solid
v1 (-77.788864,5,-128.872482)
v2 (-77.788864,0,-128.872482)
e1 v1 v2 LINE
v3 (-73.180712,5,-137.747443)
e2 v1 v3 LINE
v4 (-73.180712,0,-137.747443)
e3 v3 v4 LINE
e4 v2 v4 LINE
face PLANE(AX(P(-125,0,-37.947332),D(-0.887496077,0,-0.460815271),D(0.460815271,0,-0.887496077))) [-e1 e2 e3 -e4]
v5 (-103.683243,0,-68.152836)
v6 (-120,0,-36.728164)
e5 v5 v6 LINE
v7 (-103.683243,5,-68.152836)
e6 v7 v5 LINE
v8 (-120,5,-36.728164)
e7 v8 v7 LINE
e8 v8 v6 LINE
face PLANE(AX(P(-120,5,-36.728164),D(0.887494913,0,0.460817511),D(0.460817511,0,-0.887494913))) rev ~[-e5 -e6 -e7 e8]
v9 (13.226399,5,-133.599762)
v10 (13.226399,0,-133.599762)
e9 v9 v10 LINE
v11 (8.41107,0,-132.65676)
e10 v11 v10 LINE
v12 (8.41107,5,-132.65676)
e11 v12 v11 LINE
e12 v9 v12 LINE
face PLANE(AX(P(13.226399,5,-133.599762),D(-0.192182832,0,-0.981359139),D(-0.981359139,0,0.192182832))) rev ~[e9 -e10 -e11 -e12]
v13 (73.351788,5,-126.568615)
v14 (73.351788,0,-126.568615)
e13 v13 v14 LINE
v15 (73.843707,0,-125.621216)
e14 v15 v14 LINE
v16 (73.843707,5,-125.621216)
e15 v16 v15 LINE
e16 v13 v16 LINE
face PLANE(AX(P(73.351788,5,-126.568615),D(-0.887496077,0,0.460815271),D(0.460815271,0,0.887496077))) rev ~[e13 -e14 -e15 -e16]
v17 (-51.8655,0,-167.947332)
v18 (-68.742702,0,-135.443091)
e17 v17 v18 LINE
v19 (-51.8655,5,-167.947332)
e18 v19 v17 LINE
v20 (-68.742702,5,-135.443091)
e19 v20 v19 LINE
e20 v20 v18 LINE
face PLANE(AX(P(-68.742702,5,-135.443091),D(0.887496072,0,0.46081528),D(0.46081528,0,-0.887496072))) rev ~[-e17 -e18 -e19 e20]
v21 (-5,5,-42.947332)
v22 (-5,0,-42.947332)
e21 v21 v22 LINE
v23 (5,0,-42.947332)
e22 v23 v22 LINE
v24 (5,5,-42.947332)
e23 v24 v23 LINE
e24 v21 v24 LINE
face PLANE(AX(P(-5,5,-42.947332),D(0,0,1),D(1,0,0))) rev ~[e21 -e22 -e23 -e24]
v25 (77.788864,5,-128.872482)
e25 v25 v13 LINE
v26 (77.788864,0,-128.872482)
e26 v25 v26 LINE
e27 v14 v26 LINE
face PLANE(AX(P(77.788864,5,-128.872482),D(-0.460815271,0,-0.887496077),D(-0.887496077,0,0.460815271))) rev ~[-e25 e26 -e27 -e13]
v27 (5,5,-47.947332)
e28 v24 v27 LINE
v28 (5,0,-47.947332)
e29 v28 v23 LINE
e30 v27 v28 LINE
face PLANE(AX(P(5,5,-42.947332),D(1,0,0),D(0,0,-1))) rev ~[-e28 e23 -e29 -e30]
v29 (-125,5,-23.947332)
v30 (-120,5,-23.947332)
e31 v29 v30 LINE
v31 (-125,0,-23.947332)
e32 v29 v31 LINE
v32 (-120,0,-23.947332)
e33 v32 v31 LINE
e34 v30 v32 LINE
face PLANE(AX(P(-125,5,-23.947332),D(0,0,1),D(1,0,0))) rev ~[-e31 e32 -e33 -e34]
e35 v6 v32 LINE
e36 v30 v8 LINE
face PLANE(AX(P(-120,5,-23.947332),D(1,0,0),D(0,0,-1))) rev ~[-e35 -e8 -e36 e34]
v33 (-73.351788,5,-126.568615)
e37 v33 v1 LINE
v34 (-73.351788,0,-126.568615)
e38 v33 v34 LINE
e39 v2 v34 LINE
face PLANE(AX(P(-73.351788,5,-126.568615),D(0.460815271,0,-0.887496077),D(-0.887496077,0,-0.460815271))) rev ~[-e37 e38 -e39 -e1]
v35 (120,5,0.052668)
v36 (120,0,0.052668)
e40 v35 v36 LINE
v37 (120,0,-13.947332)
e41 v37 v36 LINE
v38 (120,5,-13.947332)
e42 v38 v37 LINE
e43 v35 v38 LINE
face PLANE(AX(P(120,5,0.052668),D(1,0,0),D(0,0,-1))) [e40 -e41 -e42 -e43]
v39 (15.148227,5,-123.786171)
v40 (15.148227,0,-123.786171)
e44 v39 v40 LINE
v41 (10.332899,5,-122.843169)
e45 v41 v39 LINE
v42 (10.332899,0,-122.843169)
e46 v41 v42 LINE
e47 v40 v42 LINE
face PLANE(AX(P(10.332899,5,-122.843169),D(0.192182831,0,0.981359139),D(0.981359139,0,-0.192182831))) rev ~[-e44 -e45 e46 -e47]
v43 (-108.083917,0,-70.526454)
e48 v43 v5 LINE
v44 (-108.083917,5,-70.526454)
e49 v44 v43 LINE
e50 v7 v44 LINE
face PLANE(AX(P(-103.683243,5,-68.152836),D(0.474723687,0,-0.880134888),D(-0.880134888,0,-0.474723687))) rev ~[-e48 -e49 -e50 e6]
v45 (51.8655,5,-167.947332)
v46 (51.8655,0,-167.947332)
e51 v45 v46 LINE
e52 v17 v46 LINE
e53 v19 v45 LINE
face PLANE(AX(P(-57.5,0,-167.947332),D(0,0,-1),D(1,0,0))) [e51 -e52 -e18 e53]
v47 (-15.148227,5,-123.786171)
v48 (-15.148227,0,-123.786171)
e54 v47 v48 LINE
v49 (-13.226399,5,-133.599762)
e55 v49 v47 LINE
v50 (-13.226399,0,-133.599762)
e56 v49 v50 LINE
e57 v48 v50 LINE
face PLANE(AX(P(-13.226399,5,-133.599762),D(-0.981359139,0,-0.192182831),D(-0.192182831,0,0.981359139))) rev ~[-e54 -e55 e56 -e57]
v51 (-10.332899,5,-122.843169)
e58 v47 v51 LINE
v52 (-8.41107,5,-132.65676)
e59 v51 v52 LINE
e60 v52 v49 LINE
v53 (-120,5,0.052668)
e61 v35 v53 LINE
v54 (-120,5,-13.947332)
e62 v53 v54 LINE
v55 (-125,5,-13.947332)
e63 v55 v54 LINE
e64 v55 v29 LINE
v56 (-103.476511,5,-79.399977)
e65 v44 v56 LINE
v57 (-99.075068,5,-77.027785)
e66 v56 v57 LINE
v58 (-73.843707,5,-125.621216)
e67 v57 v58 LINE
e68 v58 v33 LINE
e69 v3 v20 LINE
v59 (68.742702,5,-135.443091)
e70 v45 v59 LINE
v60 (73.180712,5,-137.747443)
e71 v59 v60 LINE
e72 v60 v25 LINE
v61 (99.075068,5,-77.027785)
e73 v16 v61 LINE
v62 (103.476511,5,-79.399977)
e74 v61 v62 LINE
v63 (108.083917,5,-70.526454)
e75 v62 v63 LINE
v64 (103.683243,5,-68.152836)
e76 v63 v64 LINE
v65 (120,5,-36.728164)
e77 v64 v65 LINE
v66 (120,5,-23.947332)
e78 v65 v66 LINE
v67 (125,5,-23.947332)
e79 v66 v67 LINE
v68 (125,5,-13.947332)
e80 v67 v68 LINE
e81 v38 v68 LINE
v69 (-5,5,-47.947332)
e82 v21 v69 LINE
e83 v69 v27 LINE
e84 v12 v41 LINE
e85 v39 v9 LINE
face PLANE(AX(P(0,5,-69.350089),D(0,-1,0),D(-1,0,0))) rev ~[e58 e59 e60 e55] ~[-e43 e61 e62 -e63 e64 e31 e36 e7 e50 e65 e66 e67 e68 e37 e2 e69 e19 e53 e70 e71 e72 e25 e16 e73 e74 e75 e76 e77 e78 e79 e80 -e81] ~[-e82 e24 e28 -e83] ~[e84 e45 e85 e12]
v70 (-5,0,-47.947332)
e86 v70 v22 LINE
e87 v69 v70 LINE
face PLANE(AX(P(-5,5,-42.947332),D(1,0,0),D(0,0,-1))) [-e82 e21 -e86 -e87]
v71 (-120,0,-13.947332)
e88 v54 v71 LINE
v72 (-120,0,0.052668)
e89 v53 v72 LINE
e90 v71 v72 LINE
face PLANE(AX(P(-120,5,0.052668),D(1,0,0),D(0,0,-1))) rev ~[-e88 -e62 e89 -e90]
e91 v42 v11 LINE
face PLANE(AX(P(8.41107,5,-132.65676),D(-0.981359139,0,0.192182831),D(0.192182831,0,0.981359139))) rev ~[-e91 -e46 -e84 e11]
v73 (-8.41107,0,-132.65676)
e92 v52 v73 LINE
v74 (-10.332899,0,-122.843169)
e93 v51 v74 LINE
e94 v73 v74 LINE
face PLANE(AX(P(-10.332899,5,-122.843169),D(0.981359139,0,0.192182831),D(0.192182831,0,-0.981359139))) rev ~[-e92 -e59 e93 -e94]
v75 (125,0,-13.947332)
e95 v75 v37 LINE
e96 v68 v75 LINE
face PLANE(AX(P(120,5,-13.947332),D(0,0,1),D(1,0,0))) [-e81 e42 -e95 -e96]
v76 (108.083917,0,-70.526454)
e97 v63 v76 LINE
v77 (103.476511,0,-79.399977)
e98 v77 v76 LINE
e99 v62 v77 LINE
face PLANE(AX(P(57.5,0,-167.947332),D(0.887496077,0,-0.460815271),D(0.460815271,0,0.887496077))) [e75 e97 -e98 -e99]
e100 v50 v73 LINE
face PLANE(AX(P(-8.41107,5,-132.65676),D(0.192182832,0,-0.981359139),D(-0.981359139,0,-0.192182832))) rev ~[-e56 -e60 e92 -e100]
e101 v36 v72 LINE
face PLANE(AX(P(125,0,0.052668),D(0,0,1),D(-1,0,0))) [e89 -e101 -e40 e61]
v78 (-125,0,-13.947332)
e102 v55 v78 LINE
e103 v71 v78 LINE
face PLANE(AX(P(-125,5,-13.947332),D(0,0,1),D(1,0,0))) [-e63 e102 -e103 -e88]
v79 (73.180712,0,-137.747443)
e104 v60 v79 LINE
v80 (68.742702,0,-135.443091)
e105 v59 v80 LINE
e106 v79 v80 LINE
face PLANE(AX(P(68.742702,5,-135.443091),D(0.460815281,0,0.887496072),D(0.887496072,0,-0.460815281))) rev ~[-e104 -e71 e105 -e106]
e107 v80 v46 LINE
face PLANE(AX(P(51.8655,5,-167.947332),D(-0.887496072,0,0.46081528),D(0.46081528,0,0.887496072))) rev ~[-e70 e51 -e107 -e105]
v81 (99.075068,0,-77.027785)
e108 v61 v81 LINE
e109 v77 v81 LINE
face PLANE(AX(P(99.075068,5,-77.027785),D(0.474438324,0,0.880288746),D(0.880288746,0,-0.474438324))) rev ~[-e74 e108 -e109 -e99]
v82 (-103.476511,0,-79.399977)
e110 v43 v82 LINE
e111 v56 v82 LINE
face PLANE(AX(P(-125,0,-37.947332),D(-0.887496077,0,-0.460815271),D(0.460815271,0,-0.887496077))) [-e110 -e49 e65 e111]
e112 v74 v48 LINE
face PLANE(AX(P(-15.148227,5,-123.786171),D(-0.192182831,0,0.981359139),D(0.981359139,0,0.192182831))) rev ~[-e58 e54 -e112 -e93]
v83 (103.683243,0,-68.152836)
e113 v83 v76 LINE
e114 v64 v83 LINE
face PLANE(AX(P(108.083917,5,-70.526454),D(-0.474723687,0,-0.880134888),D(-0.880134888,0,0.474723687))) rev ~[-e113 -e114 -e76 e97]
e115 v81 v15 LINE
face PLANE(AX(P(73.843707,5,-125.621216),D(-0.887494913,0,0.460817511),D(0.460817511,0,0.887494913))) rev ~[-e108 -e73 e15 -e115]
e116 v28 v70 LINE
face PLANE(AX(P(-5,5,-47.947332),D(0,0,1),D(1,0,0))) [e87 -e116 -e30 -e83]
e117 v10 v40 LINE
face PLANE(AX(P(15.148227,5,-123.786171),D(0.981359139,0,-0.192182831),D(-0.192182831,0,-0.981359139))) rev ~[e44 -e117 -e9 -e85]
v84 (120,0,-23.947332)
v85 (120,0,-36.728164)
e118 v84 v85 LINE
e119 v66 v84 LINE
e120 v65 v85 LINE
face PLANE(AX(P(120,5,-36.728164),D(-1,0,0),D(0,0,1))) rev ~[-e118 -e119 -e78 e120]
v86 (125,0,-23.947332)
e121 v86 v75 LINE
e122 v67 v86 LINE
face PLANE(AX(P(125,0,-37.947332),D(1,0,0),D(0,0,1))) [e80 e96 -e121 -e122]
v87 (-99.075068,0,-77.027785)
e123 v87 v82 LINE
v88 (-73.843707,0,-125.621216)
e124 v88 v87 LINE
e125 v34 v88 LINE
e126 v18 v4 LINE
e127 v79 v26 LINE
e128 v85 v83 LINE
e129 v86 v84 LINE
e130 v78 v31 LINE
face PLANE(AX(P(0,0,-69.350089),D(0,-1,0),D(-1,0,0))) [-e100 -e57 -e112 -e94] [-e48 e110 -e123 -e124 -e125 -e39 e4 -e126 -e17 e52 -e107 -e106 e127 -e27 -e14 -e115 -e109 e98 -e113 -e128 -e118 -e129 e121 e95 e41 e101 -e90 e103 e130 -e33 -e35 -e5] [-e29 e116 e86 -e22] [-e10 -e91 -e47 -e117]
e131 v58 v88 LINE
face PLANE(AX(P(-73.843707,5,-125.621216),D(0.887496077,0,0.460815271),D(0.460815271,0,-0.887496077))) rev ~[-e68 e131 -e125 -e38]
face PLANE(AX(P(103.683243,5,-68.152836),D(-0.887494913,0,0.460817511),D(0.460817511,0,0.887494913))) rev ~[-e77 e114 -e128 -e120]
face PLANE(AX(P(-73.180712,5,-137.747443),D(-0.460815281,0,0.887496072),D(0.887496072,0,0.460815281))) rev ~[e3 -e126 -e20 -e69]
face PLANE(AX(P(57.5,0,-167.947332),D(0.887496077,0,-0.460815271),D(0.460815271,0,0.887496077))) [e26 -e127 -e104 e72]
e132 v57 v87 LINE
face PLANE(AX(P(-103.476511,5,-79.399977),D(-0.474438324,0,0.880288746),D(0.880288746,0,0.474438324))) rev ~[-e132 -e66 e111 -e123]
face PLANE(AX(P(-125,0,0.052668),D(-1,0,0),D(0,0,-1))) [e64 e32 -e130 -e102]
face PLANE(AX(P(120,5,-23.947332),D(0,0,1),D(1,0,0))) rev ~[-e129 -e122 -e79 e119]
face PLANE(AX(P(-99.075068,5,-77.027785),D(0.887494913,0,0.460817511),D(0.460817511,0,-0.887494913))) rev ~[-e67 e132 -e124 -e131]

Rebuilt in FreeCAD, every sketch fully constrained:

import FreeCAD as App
import Part
import Sketcher


def add_polygon(sketch, points):
    """Adds a closed chain of lines whose ends are joined by coincident constraints."""
    first, n = sketch.GeometryCount, len(points)
    for a, b in zip(points, points[1:] + points[:1]):
        sketch.addGeometry(Part.LineSegment(App.Vector(*a, 0), App.Vector(*b, 0)), False)
    for i in range(n):
        sketch.addConstraint(Sketcher.Constraint("Coincident", first + i, 2, first + (i + 1) % n, 1))

doc = App.newDocument("Part")
body = doc.addObject("PartDesign::Body", "Body")

# Sketch on XZ plane
sketch1 = body.newObject("Sketcher::SketchObject", "Sketch")
sketch1.AttachmentSupport = (doc.getObject("XZ_Plane"), [""])
sketch1.MapMode = "FlatFace"
add_polygon(sketch1, [(57.5, -167.947332), (-57.5, -167.947332), (-125, -37.947332), (-125, 0.052668), (125, 0.052668), (125, -37.947332)])  # lines 0-5
sketch1.addConstraint([
    Sketcher.Constraint("Horizontal", 0),
    Sketcher.Constraint("Vertical", 2),
    Sketcher.Constraint("Horizontal", 3),
    Sketcher.Constraint("Vertical", 4),
    Sketcher.Constraint("Symmetric", 1, 2, 4, 2, -2),
    Sketcher.Constraint("Equal", 1, 5),
    Sketcher.Constraint("DistanceX", 0, 2, 0, 1, 115.0),
    Sketcher.Constraint("DistanceX", 3, 1, 3, 2, 250.0),
    Sketcher.Constraint("DistanceY", 2, 1, 2, 2, 38.0),
    Sketcher.Constraint("DistanceY", 0, 2, 1, 2, 130.0),
    Sketcher.Constraint("DistanceY", 0, 2, -1, 1, 167.947332),
])
pad1 = body.newObject("PartDesign::Pad", "Pad")
pad1.Profile = sketch1
pad1.Length = 5
pad1.Reversed = True

# Sketch on XZ plane
sketch2 = body.newObject("Sketcher::SketchObject", "Sketch001")
sketch2.AttachmentSupport = (doc.getObject("XZ_Plane"), [""])
sketch2.MapMode = "FlatFace"
sketch2.AttachmentOffset = App.Placement(App.Vector(0, 0, -5), App.Rotation())
add_polygon(sketch2, [(-77.788864, -128.872482), (-103.476511, -79.399977), (-99.075068, -77.027785), (-73.843707, -125.621216), (-73.351788, -126.568615)])  # lines 0-4
add_polygon(sketch2, [(-125, -37.947332), (-125, -23.947332), (-120, -23.947332), (-120, -36.728164), (-103.683243, -68.152836), (-108.083917, -70.526454)])  # lines 5-10
add_polygon(sketch2, [(-125, -13.947332), (-125, 0.052668), (-120, 0.052668), (-120, -13.947332)])  # lines 11-14
add_polygon(sketch2, [(-5, -47.947332), (-5, -42.947332), (5, -42.947332), (5, -47.947332)])  # lines 15-18
add_polygon(sketch2, [(-8.41107, -132.65676), (-13.226399, -133.599762), (-15.148227, -123.786171), (-10.332899, -122.843169)])  # lines 19-22
add_polygon(sketch2, [(10.332899, -122.843169), (15.148227, -123.786171), (13.226399, -133.599762), (8.41107, -132.65676)])  # lines 23-26
add_polygon(sketch2, [(-73.180712, -137.747443), (-68.742702, -135.443091), (-51.8655, -167.947332), (-57.5, -167.947332)])  # lines 27-30
add_polygon(sketch2, [(73.351788, -126.568615), (73.843707, -125.621216), (99.075068, -77.027785), (103.476511, -79.399977), (77.788864, -128.872482)])  # lines 31-35
add_polygon(sketch2, [(68.742702, -135.443091), (73.180712, -137.747443), (57.5, -167.947332), (51.8655, -167.947332)])  # lines 36-39
add_polygon(sketch2, [(120, -13.947332), (120, 0.052668), (125, 0.052668), (125, -13.947332)])  # lines 40-43
add_polygon(sketch2, [(125, -23.947332), (125, -37.947332), (108.083917, -70.526454), (103.683243, -68.152836), (120, -36.728164), (120, -23.947332)])  # lines 44-49
sketch2.addConstraint([
    Sketcher.Constraint("Vertical", 5),
    Sketcher.Constraint("Horizontal", 6),
    Sketcher.Constraint("Vertical", 7),
    Sketcher.Constraint("Vertical", 11),
    Sketcher.Constraint("Horizontal", 12),
    Sketcher.Constraint("Vertical", 13),
    Sketcher.Constraint("Horizontal", 14),
    Sketcher.Constraint("Vertical", 15),
    Sketcher.Constraint("Horizontal", 16),
    Sketcher.Constraint("Vertical", 17),
    Sketcher.Constraint("Horizontal", 18),
    Sketcher.Constraint("Horizontal", 29),
    Sketcher.Constraint("Horizontal", 38),
    Sketcher.Constraint("Vertical", 40),
    Sketcher.Constraint("Horizontal", 41),
    Sketcher.Constraint("Vertical", 42),
    Sketcher.Constraint("Horizontal", 43),
    Sketcher.Constraint("Vertical", 44),
    Sketcher.Constraint("Vertical", 48),
    Sketcher.Constraint("Horizontal", 49),
    Sketcher.Constraint("DistanceX", 6, 1, 6, 2, 5.0),
    Sketcher.Constraint("DistanceX", 12, 1, 12, 2, 5.0),
    Sketcher.Constraint("DistanceX", 16, 1, 16, 2, 10.0),
    Sketcher.Constraint("DistanceX", 41, 1, 41, 2, 5.0),
    Sketcher.Constraint("DistanceX", 49, 1, 49, 2, 5.0),
    Sketcher.Constraint("DistanceY", 5, 1, 5, 2, 14.0),
    Sketcher.Constraint("DistanceY", 11, 1, 11, 2, 14.0),
    Sketcher.Constraint("DistanceY", 15, 1, 15, 2, 5.0),
    Sketcher.Constraint("DistanceY", 40, 1, 40, 2, 14.0),
    Sketcher.Constraint("DistanceY", 44, 2, 44, 1, 14.0),
    Sketcher.Constraint("Distance", 1, 5.0),
    Sketcher.Constraint("Distance", 9, 5.0),
    Sketcher.Constraint("Distance", 20, 10.0),
    Sketcher.Constraint("Distance", 22, 10.0),
    Sketcher.Constraint("Distance", 24, 10.0),
    Sketcher.Constraint("Distance", 26, 10.0),
    Sketcher.Constraint("Distance", 33, 5.0),
    Sketcher.Constraint("Distance", 46, 5.0),
    Sketcher.Constraint("DistanceX", 5, 2, -1, 1, 125.0),
    Sketcher.Constraint("DistanceX", 11, 2, -1, 1, 125.0),
    Sketcher.Constraint("DistanceX", 15, 2, -1, 1, 5.0),
    Sketcher.Constraint("DistanceX", -1, 1, 40, 2, 120.0),
    Sketcher.Constraint("DistanceX", -1, 1, 44, 2, 125.0),
    Sketcher.Constraint("DistanceY", 5, 2, 11, 2, 24.0),
    Sketcher.Constraint("DistanceY", 16, 2, 40, 2, 43.0),
    Sketcher.Constraint("DistanceY", 44, 2, 42, 2, 24.0),
    Sketcher.Constraint("DistanceX", 29, 2, -1, 1, 57.5),
    Sketcher.Constraint("DistanceX", -1, 1, 37, 2, 57.5),
    Sketcher.Constraint("DistanceX", 29, 2, 29, 1, 5.6345),
    Sketcher.Constraint("DistanceX", 38, 2, 38, 1, 5.6345),
    Sketcher.Constraint("DistanceY", 20, 2, 21, 2, 0.943002),
    Sketcher.Constraint("DistanceY", 19, 2, 22, 2, 0.943002),
    Sketcher.Constraint("DistanceY", 23, 2, 21, 2, 0.943002),
    Sketcher.Constraint("DistanceY", 24, 2, 22, 2, 0.943002),
    Sketcher.Constraint("DistanceY", 24, 2, 25, 2, 0.943002),
    Sketcher.Constraint("DistanceY", 23, 2, 26, 2, 0.943002),
    Sketcher.Constraint("DistanceX", 19, 2, -1, 1, 13.226399),
    Sketcher.Constraint("DistanceX", 21, 2, -1, 1, 10.332899),
    Sketcher.Constraint("DistanceX", -1, 1, 24, 2, 13.226399),
    Sketcher.Constraint("DistanceX", -1, 1, 26, 2, 10.332899),
    Sketcher.Constraint("DistanceY", 3, 2, 2, 2, 0.9474),
    Sketcher.Constraint("DistanceY", 35, 2, 31, 2, 0.9474),
    Sketcher.Constraint("Distance", 28, 36.624658),
    Sketcher.Constraint("Distance", 39, 36.624658),
    Sketcher.Constraint("DistanceY", 7, 2, 7, 1, 12.780832),
    Sketcher.Constraint("DistanceY", 48, 1, 48, 2, 12.780832),
    Sketcher.Constraint("DistanceX", 0, 2, -1, 1, 103.476511),
    Sketcher.Constraint("DistanceX", 3, 2, -1, 1, 73.351788),
    Sketcher.Constraint("DistanceY", 4, 2, -1, 1, 128.872482),
    Sketcher.Constraint("DistanceY", 5, 2, -1, 1, 23.947332),
    Sketcher.Constraint("DistanceY", 15, 2, -1, 1, 42.947332),
    Sketcher.Constraint("DistanceY", 20, 2, -1, 1, 123.786171),
    Sketcher.Constraint("DistanceX", 22, 2, -1, 1, 8.41107),
    Sketcher.Constraint("DistanceY", 27, 2, -1, 1, 135.443091),
    Sketcher.Constraint("DistanceY", 28, 2, -1, 1, 167.947332),
    Sketcher.Constraint("DistanceX", 30, 2, -1, 1, 73.180712),
    Sketcher.Constraint("DistanceX", -1, 1, 33, 2, 103.476511),
    Sketcher.Constraint("DistanceY", 34, 2, -1, 1, 128.872482),
    Sketcher.Constraint("DistanceX", -1, 1, 35, 2, 73.351788),
    Sketcher.Constraint("DistanceX", -1, 1, 36, 2, 73.180712),
    Sketcher.Constraint("DistanceY", 37, 2, -1, 1, 167.947332),
    Sketcher.Constraint("DistanceY", 39, 2, -1, 1, 135.443091),
    Sketcher.Constraint("DistanceY", 0, 2, 1, 2, 2.372192),
    Sketcher.Constraint("DistanceX", 1, 2, 2, 2, 25.23136),
    Sketcher.Constraint("DistanceY", 2, 2, 1, 2, 48.593431),
    Sketcher.Constraint("DistanceY", 1, 2, 7, 2, 40.299621),
    Sketcher.Constraint("DistanceY", 1, 2, 8, 2, 8.874949),
    Sketcher.Constraint("DistanceX", 8, 2, 0, 2, 0.206731),
    Sketcher.Constraint("DistanceY", 9, 2, 8, 2, 2.373618),
    Sketcher.Constraint("DistanceY", 30, 2, 27, 2, 2.304351),
    Sketcher.Constraint("DistanceX", 23, 2, 31, 2, 58.69548),
    Sketcher.Constraint("DistanceX", 31, 2, 32, 2, 25.23136),
    Sketcher.Constraint("DistanceY", 31, 2, 32, 2, 48.593431),
    Sketcher.Constraint("DistanceY", 36, 2, 34, 2, 8.874961),
    Sketcher.Constraint("DistanceX", 32, 2, 45, 2, 9.00885),
    Sketcher.Constraint("DistanceY", 32, 2, 45, 2, 6.501331),
    Sketcher.Constraint("DistanceY", 45, 2, 46, 2, 2.373618),
    Sketcher.Constraint("DistanceY", 46, 2, 47, 2, 31.424672),
    Sketcher.Constraint("Distance", 0, 55.743914),
    Sketcher.Constraint("Distance", 34, 55.743914),
])
pocket1 = body.newObject("PartDesign::Pocket", "Pocket")
pocket1.Profile = sketch2
pocket1.Type = "ThroughAll"
pocket1.Reversed = True

doc.recompute()
